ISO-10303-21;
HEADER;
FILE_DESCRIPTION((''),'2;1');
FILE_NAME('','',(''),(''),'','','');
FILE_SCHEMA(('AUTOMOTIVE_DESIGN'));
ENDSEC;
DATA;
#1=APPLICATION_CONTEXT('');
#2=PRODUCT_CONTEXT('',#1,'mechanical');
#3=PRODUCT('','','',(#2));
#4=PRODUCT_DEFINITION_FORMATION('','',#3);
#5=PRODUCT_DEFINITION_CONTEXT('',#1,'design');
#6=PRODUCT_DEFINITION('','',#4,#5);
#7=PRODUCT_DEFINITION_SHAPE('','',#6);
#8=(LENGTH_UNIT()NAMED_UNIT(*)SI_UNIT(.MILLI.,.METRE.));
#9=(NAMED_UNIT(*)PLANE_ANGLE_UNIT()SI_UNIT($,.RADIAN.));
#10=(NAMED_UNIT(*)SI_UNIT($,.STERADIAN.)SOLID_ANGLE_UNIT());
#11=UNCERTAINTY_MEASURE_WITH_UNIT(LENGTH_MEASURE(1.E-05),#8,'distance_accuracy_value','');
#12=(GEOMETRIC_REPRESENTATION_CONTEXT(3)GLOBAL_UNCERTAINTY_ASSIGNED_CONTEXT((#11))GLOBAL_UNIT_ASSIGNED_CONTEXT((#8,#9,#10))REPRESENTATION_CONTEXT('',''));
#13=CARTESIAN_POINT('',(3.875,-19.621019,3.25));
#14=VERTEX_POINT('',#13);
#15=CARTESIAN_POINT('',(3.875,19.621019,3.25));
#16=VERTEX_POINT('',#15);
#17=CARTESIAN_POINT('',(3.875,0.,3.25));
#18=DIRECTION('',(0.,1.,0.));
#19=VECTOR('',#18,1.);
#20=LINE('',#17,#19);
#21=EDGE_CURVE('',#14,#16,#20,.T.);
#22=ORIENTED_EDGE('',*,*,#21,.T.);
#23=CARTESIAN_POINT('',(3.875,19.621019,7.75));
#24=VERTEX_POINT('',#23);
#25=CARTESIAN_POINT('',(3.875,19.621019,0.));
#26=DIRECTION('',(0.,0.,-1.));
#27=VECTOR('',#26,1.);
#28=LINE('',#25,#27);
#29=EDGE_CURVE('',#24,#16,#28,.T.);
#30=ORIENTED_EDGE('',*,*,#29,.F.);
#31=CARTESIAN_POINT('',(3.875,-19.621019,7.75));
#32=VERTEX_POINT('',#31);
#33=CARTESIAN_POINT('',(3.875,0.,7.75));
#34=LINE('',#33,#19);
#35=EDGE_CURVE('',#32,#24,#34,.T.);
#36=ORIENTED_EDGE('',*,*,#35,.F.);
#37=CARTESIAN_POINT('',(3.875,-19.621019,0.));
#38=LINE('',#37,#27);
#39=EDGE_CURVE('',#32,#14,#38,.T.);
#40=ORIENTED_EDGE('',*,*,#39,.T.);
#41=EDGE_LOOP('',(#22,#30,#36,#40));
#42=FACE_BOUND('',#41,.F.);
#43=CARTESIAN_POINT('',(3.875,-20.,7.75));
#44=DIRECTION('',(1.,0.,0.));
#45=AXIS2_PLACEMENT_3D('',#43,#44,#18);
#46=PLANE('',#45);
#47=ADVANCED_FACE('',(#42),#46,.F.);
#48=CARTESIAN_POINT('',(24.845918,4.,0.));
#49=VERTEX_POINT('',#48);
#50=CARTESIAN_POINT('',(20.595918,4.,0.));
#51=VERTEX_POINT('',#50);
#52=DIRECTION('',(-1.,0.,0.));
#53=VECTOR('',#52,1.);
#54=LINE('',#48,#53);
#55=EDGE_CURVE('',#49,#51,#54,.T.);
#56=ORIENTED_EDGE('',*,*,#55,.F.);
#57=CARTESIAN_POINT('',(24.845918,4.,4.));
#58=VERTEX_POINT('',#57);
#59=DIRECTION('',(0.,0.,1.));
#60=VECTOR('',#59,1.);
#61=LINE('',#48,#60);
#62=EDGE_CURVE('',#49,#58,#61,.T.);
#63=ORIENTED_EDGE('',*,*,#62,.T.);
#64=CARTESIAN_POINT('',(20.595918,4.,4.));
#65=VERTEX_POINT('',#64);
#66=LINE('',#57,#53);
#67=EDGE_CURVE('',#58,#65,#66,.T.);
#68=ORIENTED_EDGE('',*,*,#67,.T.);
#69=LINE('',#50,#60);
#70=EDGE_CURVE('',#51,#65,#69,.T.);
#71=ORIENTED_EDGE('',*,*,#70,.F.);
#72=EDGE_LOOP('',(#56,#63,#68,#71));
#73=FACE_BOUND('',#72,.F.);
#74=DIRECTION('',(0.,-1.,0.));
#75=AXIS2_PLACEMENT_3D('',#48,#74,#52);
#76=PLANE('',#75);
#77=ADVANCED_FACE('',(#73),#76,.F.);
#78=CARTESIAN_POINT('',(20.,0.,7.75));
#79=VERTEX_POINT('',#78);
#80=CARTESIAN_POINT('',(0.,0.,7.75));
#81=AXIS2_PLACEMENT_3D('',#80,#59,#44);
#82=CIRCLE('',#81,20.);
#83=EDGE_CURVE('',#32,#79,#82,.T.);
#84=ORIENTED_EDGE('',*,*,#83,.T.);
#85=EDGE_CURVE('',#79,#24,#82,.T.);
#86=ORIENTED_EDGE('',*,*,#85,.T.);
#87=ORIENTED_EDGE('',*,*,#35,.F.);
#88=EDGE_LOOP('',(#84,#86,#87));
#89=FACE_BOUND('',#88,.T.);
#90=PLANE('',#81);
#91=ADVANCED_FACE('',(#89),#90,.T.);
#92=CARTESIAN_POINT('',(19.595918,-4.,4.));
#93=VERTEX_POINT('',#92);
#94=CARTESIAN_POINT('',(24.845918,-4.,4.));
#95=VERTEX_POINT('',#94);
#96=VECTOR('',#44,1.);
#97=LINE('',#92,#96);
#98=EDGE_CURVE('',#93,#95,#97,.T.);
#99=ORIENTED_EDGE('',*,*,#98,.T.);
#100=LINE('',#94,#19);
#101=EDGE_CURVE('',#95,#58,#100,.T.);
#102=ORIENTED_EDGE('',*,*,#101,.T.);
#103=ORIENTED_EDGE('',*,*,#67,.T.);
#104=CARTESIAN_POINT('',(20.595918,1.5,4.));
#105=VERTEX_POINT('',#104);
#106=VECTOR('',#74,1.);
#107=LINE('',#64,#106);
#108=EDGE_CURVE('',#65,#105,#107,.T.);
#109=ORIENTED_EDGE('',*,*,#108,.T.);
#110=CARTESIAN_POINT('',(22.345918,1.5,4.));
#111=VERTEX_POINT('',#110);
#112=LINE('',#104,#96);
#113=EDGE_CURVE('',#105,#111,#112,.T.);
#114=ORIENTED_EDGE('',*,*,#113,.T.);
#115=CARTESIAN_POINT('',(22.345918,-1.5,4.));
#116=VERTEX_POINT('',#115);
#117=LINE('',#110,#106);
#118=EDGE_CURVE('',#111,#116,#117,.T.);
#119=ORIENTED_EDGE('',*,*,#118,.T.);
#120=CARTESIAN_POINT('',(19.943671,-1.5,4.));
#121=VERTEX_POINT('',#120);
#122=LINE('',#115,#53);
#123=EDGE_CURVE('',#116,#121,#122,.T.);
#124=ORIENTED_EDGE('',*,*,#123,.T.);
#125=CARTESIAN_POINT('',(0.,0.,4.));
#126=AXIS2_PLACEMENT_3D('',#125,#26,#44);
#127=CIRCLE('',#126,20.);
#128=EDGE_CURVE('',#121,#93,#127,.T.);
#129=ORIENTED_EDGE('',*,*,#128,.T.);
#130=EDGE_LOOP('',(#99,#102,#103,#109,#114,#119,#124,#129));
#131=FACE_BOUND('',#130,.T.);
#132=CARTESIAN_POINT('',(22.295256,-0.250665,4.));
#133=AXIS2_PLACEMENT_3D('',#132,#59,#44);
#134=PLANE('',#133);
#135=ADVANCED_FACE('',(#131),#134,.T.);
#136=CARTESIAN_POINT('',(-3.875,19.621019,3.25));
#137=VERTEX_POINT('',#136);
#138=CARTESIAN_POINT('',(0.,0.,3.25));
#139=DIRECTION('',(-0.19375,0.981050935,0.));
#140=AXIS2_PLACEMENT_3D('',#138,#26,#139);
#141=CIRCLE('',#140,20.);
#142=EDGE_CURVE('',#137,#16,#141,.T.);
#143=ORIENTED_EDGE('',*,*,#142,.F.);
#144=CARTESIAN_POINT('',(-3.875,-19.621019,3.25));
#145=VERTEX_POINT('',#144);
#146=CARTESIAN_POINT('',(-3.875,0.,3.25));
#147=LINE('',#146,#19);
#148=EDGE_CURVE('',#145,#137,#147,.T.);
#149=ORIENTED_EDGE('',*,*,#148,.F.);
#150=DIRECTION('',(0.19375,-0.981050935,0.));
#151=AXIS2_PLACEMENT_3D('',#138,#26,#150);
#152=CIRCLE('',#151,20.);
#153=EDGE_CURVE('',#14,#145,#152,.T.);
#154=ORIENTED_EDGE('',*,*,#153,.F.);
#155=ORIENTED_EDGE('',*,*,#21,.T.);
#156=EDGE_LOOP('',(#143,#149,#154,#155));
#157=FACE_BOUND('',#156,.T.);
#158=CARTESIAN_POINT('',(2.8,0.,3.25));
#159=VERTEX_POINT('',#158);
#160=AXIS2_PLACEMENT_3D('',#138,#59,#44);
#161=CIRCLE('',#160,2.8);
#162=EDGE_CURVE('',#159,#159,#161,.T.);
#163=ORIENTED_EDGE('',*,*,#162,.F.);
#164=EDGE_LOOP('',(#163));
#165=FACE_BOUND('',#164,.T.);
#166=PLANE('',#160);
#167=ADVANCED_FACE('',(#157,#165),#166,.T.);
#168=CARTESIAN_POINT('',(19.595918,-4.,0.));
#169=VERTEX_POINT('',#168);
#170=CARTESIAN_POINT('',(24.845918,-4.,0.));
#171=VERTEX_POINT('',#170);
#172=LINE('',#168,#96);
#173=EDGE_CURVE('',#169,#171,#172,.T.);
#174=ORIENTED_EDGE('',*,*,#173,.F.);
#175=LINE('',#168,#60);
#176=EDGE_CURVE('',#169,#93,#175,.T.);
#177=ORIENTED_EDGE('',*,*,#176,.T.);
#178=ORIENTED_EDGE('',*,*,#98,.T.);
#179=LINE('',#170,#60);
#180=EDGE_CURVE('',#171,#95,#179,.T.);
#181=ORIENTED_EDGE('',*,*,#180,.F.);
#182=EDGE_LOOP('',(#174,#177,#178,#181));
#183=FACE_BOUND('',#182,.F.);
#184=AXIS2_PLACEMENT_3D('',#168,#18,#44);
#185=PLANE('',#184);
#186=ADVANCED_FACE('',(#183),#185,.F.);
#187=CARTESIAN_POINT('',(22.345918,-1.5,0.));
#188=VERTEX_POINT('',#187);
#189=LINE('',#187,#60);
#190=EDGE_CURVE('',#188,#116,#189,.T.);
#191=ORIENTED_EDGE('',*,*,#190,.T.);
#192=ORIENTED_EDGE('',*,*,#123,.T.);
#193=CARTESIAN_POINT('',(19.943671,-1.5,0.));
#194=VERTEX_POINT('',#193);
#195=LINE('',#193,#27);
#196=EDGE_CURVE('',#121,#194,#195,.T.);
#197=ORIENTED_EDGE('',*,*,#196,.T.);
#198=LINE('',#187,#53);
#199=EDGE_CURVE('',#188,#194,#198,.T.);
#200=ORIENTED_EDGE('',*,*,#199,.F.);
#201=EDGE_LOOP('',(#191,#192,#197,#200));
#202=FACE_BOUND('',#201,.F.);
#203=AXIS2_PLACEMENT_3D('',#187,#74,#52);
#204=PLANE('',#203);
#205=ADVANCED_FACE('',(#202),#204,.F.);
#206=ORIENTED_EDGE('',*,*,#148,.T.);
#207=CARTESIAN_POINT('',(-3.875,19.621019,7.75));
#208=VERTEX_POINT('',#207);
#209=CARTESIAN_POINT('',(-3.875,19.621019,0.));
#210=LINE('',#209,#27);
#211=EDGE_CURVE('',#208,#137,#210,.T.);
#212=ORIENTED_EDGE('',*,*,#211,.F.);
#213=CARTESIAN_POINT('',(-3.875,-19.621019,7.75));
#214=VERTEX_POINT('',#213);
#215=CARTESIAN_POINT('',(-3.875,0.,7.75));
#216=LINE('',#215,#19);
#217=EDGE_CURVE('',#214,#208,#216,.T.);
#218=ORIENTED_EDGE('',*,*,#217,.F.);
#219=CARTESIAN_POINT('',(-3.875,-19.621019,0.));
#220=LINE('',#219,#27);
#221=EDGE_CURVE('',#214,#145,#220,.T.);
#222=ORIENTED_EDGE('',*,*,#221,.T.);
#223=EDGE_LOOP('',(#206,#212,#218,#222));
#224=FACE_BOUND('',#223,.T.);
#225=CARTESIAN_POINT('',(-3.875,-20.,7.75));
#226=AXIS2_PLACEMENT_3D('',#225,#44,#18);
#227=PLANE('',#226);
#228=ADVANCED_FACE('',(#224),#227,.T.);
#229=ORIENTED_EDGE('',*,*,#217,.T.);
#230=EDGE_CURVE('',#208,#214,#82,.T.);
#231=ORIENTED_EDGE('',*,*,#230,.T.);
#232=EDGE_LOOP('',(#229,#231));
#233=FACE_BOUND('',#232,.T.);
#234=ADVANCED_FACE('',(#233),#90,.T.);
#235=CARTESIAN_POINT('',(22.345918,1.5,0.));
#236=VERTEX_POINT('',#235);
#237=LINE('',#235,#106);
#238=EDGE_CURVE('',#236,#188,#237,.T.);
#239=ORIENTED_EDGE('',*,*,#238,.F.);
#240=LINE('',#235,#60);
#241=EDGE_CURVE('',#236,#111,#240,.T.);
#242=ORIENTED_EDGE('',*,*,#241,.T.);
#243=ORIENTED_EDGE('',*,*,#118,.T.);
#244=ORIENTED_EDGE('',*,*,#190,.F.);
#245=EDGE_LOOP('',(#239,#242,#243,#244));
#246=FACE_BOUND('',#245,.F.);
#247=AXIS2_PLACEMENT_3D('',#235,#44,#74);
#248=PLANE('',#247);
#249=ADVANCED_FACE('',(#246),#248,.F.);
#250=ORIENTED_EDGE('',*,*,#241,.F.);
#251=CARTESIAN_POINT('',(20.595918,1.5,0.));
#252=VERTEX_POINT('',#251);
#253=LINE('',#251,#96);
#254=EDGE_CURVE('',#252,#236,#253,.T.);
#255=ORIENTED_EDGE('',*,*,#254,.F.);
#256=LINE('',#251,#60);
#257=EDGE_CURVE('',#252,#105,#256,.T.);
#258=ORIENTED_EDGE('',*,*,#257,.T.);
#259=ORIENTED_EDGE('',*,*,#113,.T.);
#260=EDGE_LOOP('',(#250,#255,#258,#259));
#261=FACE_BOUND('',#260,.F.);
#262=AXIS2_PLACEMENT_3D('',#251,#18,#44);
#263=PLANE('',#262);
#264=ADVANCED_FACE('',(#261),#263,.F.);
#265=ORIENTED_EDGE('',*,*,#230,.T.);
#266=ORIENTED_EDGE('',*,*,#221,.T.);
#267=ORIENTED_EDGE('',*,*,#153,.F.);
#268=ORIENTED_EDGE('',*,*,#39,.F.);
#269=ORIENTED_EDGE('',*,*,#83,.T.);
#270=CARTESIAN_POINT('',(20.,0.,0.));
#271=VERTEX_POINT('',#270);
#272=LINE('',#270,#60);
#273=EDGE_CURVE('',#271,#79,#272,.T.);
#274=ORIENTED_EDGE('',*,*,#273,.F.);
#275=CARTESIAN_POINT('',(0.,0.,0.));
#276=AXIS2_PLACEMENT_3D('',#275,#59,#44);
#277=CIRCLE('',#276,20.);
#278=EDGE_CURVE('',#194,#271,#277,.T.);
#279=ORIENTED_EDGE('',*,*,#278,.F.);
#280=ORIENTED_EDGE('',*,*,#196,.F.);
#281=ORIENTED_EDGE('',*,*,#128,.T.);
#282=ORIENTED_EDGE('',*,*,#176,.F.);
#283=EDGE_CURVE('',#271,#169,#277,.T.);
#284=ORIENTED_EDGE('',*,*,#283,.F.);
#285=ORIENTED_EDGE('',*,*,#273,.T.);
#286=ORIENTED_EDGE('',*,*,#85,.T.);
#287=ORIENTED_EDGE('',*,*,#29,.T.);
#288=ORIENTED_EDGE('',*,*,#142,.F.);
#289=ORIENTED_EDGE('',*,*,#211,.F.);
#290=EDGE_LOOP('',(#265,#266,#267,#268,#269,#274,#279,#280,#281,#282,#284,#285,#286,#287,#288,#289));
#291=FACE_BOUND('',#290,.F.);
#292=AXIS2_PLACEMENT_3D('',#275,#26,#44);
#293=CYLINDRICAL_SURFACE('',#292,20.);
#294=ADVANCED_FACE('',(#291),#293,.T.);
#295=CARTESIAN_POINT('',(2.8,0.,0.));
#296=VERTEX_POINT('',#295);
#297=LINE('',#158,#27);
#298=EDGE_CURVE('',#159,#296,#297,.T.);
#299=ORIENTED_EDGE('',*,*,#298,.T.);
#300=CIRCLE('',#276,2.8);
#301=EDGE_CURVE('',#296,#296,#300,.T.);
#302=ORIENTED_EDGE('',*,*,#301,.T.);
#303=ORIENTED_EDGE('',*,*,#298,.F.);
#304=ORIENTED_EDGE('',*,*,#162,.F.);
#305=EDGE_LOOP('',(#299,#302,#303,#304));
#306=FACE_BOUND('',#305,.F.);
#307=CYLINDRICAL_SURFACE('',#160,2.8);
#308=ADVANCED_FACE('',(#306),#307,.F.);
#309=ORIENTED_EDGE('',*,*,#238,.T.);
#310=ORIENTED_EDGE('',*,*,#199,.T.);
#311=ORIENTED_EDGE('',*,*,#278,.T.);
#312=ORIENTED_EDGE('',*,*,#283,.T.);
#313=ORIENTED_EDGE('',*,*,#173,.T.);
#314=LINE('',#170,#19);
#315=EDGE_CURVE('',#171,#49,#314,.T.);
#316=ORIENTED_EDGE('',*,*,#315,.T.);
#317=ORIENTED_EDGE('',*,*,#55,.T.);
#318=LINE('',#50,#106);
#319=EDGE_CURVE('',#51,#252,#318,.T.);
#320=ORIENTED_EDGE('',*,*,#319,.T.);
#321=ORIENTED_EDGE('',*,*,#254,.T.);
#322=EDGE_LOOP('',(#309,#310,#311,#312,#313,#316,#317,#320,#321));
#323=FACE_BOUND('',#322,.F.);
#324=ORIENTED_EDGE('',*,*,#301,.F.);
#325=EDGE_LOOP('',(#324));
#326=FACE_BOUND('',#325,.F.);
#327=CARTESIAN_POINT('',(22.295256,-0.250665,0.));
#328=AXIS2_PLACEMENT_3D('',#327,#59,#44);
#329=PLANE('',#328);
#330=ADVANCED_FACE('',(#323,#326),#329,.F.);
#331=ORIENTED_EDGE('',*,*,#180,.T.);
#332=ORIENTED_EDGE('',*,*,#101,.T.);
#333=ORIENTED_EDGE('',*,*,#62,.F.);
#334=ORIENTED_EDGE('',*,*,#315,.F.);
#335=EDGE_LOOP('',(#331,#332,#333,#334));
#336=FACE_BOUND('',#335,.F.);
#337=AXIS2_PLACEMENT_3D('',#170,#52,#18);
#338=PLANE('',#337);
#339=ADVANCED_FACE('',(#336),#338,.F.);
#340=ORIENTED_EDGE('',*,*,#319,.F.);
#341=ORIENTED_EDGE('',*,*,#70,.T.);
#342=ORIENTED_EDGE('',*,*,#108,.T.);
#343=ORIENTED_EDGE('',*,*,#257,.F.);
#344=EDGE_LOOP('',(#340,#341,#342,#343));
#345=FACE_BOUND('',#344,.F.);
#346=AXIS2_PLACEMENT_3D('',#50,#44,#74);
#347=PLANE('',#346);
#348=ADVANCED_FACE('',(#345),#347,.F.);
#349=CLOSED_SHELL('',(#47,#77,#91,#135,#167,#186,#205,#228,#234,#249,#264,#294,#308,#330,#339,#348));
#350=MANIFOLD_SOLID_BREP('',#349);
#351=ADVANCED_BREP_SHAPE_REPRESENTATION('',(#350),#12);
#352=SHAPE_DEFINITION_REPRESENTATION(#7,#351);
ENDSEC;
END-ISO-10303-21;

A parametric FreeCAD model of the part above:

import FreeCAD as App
import Part
import Sketcher
from FreeCAD import Vector


def add_polygon(sketch, points):
    """Adds a closed chain of lines whose ends are joined by coincident constraints."""
    first, n = sketch.GeometryCount, len(points)
    for a, b in zip(points, points[1:] + points[:1]):
        sketch.addGeometry(Part.LineSegment(App.Vector(*a, 0), App.Vector(*b, 0)), False)
    for i in range(n):
        sketch.addConstraint(Sketcher.Constraint("Coincident", first + i, 2, first + (i + 1) % n, 1))

doc = App.newDocument("Part")
body = doc.addObject("PartDesign::Body", "Body")

sketch1 = doc.addObject("Sketcher::SketchObject", "Sketch")
body.addObject(sketch1)
sketch1.AttachmentSupport = (doc.XY_Plane, [""])
sketch1.MapMode = "FlatFace"
sketch1.addGeometry(Part.Circle(Vector(0, 0, 0), Vector(0, 0, 1), 20), False)
sketch1.addConstraint([
    Sketcher.Constraint("Coincident", 0, 3, -1, 1),
    Sketcher.Constraint("Diameter", 0, 40.0),
])
pad1 = doc.addObject("PartDesign::Pad", "Pad")
body.addObject(pad1)
pad1.Profile = sketch1
pad1.Length = 7.75

sketch2 = doc.addObject("Sketcher::SketchObject", "Sketch001")
body.addObject(sketch2)
sketch2.AttachmentSupport = (doc.XY_Plane, [""])
sketch2.MapMode = "FlatFace"
sketch2.AttachmentOffset = App.Placement(Vector(0, 0, 7.75), App.Rotation())
add_polygon(sketch2, [(-4, 20), (-4, -20), (4, -20), (4, 20)])
sketch2.addConstraint([
    Sketcher.Constraint("Vertical", 0),
    Sketcher.Constraint("Horizontal", 1),
    Sketcher.Constraint("Vertical", 2),
    Sketcher.Constraint("Horizontal", 3),
    Sketcher.Constraint("Symmetric", 0, 2, 2, 2, -1, 1),
    Sketcher.Constraint("DistanceY", 0, 2, 0, 1, 40.0),
    Sketcher.Constraint("DistanceX", 1, 1, 1, 2, 7.75),
])
pocket1 = doc.addObject("PartDesign::Pocket", "Pocket")
body.addObject(pocket1)
pocket1.Profile = sketch2
pocket1.Length = 4.5

sketch3 = doc.addObject("Sketcher::SketchObject", "Sketch002")
body.addObject(sketch3)
sketch3.AttachmentSupport = (doc.XY_Plane, [""])
sketch3.MapMode = "FlatFace"
add_polygon(sketch3, [(22.3, -1.5), (18.5, -1.5), (19.6, -4), (24.8, -4), (24.8, 4), (20.6, 4), (20.6, 1.5), (22.3, 1.5)])
sketch3.addConstraint([
    Sketcher.Constraint("Horizontal", 0),
    Sketcher.Constraint("Horizontal", 2),
    Sketcher.Constraint("Vertical", 3),
    Sketcher.Constraint("Horizontal", 4),
    Sketcher.Constraint("Vertical", 5),
    Sketcher.Constraint("Horizontal", 6),
    Sketcher.Constraint("Vertical", 7),
    Sketcher.Constraint("DistanceY", 3, 1, 3, 2, 8.0),
    Sketcher.Constraint("DistanceY", 7, 2, 7, 1, 3.0),
    Sketcher.Constraint("DistanceY", 5, 2, 5, 1, 2.5),
    Sketcher.Constraint("DistanceY", 1, 2, -1, 1, 4.0),
    Sketcher.Constraint("DistanceX", 1, 2, 4, 2, 1.0),
    Sketcher.Constraint("DistanceX", 2, 1, 2, 2, 5.25),
    Sketcher.Constraint("DistanceX", 6, 1, 6, 2, 1.75),
    Sketcher.Constraint("Distance", 1, 2.743439),
    Sketcher.Constraint("DistanceX", -1, 1, 1, 2, 19.595918),
])
pad2 = doc.addObject("PartDesign::Pad", "Pad001")
body.addObject(pad2)
pad2.Profile = sketch3
pad2.Length = 4

sketch4 = doc.addObject("Sketcher::SketchObject", "Sketch003")
body.addObject(sketch4)
sketch4.AttachmentSupport = (doc.XY_Plane, [""])
sketch4.MapMode = "FlatFace"
sketch4.AttachmentOffset = App.Placement(Vector(0, 0, 3.25), App.Rotation())
sketch4.addGeometry(Part.Circle(Vector(0, 0, 0), Vector(0, 0, 1), 2.8), False)
sketch4.addConstraint([
    Sketcher.Constraint("Coincident", 0, 3, -1, 1),
    Sketcher.Constraint("Diameter", 0, 5.6),
])
pocket2 = doc.addObject("PartDesign::Pocket", "Pocket001")
body.addObject(pocket2)
pocket2.Profile = sketch4
pocket2.Type = "ThroughAll"

doc.recompute()
